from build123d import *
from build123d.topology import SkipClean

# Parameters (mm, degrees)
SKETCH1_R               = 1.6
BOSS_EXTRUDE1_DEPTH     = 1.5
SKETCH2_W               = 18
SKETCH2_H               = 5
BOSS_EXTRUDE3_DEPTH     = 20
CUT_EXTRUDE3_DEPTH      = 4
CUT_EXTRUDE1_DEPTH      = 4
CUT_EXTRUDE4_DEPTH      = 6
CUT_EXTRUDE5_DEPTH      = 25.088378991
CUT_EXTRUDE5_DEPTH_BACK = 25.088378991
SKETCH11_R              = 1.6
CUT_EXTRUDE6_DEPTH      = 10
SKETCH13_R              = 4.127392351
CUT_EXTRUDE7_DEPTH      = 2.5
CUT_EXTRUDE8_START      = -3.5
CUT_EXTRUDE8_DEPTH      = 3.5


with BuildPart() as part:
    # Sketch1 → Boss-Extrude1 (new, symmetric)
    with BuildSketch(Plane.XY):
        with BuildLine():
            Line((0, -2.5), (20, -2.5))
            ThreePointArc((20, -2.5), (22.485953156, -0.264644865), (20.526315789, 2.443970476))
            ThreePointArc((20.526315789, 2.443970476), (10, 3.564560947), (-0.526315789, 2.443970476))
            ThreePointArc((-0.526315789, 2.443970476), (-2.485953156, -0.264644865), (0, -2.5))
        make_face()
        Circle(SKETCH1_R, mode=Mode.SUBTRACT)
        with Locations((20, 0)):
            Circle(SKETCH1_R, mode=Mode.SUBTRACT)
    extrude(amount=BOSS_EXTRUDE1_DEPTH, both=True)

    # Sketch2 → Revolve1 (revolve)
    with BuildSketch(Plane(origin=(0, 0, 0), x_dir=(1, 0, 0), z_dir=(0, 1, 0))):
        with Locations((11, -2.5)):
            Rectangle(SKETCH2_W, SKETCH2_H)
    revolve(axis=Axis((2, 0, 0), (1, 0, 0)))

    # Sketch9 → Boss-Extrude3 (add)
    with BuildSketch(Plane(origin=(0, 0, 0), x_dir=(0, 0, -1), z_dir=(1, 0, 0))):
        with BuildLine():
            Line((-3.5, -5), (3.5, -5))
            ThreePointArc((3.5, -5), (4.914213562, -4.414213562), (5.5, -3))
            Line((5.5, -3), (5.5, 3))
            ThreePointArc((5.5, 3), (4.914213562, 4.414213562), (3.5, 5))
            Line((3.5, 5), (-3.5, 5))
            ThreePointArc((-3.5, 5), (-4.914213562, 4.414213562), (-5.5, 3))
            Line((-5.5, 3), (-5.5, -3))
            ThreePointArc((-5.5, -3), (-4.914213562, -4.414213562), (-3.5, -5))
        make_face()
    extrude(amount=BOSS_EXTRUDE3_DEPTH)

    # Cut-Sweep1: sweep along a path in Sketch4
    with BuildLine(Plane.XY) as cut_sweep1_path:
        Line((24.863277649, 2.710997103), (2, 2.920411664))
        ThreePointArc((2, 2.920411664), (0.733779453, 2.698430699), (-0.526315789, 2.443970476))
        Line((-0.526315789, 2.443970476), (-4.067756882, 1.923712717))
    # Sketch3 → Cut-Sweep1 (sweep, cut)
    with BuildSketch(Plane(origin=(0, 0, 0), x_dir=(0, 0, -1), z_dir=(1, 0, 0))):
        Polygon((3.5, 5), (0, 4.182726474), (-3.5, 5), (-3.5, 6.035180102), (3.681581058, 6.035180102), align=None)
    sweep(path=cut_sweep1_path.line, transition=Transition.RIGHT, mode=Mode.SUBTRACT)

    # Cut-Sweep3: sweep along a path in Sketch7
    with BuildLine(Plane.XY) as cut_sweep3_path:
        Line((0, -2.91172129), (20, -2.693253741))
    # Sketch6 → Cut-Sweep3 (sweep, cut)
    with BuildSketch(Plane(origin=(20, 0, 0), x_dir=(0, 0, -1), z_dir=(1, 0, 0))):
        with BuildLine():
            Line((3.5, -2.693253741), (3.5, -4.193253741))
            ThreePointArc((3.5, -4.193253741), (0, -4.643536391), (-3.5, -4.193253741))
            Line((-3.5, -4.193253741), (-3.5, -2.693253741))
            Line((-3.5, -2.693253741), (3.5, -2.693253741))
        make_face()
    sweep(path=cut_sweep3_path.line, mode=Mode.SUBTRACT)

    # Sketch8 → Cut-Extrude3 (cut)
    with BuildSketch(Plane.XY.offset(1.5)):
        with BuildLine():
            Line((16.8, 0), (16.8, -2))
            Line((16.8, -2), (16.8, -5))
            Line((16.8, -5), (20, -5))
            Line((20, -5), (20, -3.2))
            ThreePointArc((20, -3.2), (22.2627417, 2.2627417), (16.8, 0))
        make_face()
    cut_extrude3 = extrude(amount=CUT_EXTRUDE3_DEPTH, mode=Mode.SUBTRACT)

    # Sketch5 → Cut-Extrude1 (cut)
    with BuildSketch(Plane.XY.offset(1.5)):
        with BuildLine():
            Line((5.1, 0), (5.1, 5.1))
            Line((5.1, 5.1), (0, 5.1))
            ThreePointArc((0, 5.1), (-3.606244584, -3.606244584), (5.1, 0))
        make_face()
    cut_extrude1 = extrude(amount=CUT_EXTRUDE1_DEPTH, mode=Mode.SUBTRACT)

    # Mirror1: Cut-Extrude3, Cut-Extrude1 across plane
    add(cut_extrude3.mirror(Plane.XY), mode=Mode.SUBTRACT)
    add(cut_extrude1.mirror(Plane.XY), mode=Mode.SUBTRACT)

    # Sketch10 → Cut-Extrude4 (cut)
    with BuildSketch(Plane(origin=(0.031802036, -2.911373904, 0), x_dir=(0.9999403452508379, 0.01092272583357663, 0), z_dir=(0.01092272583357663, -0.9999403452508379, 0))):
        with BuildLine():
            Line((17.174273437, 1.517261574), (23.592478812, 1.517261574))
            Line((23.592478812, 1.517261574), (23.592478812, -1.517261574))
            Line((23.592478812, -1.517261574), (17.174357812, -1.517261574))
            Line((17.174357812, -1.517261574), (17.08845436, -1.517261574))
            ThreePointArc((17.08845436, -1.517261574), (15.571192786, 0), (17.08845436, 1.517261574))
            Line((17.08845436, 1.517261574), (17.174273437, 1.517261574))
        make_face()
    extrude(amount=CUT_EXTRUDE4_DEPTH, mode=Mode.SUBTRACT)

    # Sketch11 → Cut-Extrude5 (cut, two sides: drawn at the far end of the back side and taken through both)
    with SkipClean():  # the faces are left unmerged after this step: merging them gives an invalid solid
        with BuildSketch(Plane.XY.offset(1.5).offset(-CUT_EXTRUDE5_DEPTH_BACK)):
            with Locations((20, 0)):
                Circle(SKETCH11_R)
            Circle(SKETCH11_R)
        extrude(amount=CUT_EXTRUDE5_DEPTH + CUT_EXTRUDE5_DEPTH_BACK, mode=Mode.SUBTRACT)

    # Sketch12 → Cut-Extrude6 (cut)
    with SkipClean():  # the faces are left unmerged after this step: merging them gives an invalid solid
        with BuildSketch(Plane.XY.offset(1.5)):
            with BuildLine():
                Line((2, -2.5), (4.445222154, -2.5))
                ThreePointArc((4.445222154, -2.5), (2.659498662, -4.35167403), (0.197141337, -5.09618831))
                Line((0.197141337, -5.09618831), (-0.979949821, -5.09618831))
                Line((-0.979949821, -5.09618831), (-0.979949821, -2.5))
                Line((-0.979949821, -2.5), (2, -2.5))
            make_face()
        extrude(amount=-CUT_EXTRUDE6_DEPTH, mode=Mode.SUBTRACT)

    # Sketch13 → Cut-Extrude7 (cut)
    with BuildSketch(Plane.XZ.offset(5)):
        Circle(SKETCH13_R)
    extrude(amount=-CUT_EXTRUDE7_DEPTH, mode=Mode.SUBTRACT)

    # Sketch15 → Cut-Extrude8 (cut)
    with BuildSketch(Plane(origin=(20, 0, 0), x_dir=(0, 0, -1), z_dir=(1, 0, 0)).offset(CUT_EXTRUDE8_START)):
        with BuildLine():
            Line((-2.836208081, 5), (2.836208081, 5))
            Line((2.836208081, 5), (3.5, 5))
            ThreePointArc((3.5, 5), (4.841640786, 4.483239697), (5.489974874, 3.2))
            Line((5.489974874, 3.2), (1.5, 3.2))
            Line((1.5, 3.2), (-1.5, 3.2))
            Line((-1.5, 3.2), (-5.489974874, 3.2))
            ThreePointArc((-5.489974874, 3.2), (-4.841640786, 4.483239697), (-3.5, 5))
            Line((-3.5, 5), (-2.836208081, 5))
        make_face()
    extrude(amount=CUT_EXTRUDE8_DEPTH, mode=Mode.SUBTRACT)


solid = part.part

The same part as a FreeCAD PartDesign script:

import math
import FreeCAD as App
import Part
import Sketcher
from FreeCAD import Vector
Q = App.Units.Quantity


def add_polygon(sketch, points):
    """Adds a closed chain of lines whose ends are joined by coincident constraints."""
    first, n = sketch.GeometryCount, len(points)
    for a, b in zip(points, points[1:] + points[:1]):
        sketch.addGeometry(Part.LineSegment(App.Vector(*a, 0), App.Vector(*b, 0)), False)
    for i in range(n):
        sketch.addConstraint(Sketcher.Constraint("Coincident", first + i, 2, first + (i + 1) % n, 1))

doc = App.newDocument("Part")
body = doc.addObject("PartDesign::Body", "Body")

sketch1 = body.newObject("Sketcher::SketchObject", "Sketch")
sketch1.AttachmentSupport = (doc.getObject("XY_Plane"), [""])
sketch1.MapMode = "FlatFace"
sketch1.addGeometry(Part.LineSegment(Vector(0, -2.5, 0), Vector(20, -2.5, 0)), False)
sketch1.addGeometry(Part.ArcOfCircle(Part.Circle(Vector(20, 0, 0), Vector(0, 0, 1), 2.5), math.radians(-90), math.radians(78)), False)
sketch1.addGeometry(Part.ArcOfCircle(Part.Circle(Vector(10, -46.4, 0), Vector(0, 0, 1), 50), math.radians(78), math.radians(102)), False)
sketch1.addGeometry(Part.ArcOfCircle(Part.Circle(Vector(0, 0, 0), Vector(0, 0, 1), 2.5), math.radians(102), math.radians(270)), False)
sketch1.addGeometry(Part.Circle(Vector(0, 0, 0), Vector(0, 0, 1), 1.6), False)
sketch1.addGeometry(Part.Circle(Vector(20, 0, 0), Vector(0, 0, 1), 1.6), False)
sketch1.addConstraint(Sketcher.Constraint("Tangent", 0, 2, 1, 1))
sketch1.addConstraint(Sketcher.Constraint("Tangent", 1, 2, 2, 1))
sketch1.addConstraint(Sketcher.Constraint("Tangent", 2, 2, 3, 1))
sketch1.addConstraint(Sketcher.Constraint("Tangent", 3, 2, 0, 1))
sketch1.addConstraint(Sketcher.Constraint("Horizontal", 0))
sketch1.addConstraint(Sketcher.Constraint("Coincident", 3, 3, -1, 1))
sketch1.addConstraint(Sketcher.Constraint("Coincident", 4, 3, -1, 1))
sketch1.addConstraint(Sketcher.Constraint("Coincident", 5, 3, 1, 3))
sketch1.addConstraint(Sketcher.Constraint("Equal", 1, 3))
sketch1.addConstraint(Sketcher.Constraint("Equal", 4, 5))
sketch1.addConstraint(Sketcher.Constraint("Radius", 2, Q("50 mm")))
sketch1.addConstraint(Sketcher.Constraint("Diameter", 4, Q("3.2 mm")))
sketch1.addConstraint(Sketcher.Constraint("Radius", 1, Q("2.5 mm")))
sketch1.addConstraint(Sketcher.Constraint("DistanceX", 0, 1, 0, 2, Q("20 mm")))
pad1 = body.newObject("PartDesign::Pad", "Pad")
pad1.Profile = sketch1
pad1.Length = 3
pad1.Midplane = True

sketch2 = body.newObject("Sketcher::SketchObject", "Sketch001")
sketch2.AttachmentSupport = (doc.getObject("XZ_Plane"), [""])
sketch2.MapMode = "FlatFace"
add_polygon(sketch2, [(2, 0), (2, 5), (20, 5), (20, 0)])
sketch2.addConstraint(Sketcher.Constraint("Vertical", 0))
sketch2.addConstraint(Sketcher.Constraint("Horizontal", 1))
sketch2.addConstraint(Sketcher.Constraint("Vertical", 2))
sketch2.addConstraint(Sketcher.Constraint("Horizontal", 3))
sketch2.addConstraint(Sketcher.Constraint("PointOnObject", 2, 2, -1))
sketch2.addConstraint(Sketcher.Constraint("DistanceX", 1, 1, 1, 2, Q("18 mm")))
sketch2.addConstraint(Sketcher.Constraint("DistanceY", 0, 1, 0, 2, Q("5 mm")))
sketch2.addConstraint(Sketcher.Constraint("DistanceX", -1, 1, 0, 2, Q("2 mm")))
revolution = body.newObject("PartDesign::Revolution", "Revolution")
revolution.Profile = sketch2
revolution.ReferenceAxis = (sketch2, ["H_Axis"])
revolution.Angle = 360

sketch3 = body.newObject("Sketcher::SketchObject", "Sketch002")
sketch3.AttachmentSupport = (doc.getObject("YZ_Plane"), [""])
sketch3.MapMode = "FlatFace"
sketch3.addGeometry(Part.LineSegment(Vector(-5, 3.5, 0), Vector(-5, -3.5, 0)), False)
sketch3.addGeometry(Part.ArcOfCircle(Part.Circle(Vector(-3, -3.5, 0), Vector(0, 0, 1), 2), math.radians(-180), math.radians(-90)), False)
sketch3.addGeometry(Part.LineSegment(Vector(-3, -5.5, 0), Vector(3, -5.5, 0)), False)
sketch3.addGeometry(Part.ArcOfCircle(Part.Circle(Vector(3, -3.5, 0), Vector(0, 0, 1), 2), math.radians(-90), math.radians(0)), False)
sketch3.addGeometry(Part.LineSegment(Vector(5, -3.5, 0), Vector(5, 3.5, 0)), False)
sketch3.addGeometry(Part.ArcOfCircle(Part.Circle(Vector(3, 3.5, 0), Vector(0, 0, 1), 2), math.radians(0), math.radians(90)), False)
sketch3.addGeometry(Part.LineSegment(Vector(3, 5.5, 0), Vector(-3, 5.5, 0)), False)
sketch3.addGeometry(Part.ArcOfCircle(Part.Circle(Vector(-3, 3.5, 0), Vector(0, 0, 1), 2), math.radians(90), math.radians(180)), False)
sketch3.addConstraint(Sketcher.Constraint("Tangent", 0, 2, 1, 1))
sketch3.addConstraint(Sketcher.Constraint("Tangent", 1, 2, 2, 1))
sketch3.addConstraint(Sketcher.Constraint("Tangent", 2, 2, 3, 1))
sketch3.addConstraint(Sketcher.Constraint("Tangent", 3, 2, 4, 1))
sketch3.addConstraint(Sketcher.Constraint("Tangent", 4, 2, 5, 1))
sketch3.addConstraint(Sketcher.Constraint("Tangent", 5, 2, 6, 1))
sketch3.addConstraint(Sketcher.Constraint("Tangent", 6, 2, 7, 1))
sketch3.addConstraint(Sketcher.Constraint("Tangent", 7, 2, 0, 1))
sketch3.addConstraint(Sketcher.Constraint("Vertical", 0))
sketch3.addConstraint(Sketcher.Constraint("Horizontal", 2))
sketch3.addConstraint(Sketcher.Constraint("Vertical", 4))
sketch3.addConstraint(Sketcher.Constraint("Horizontal", 6))
sketch3.addConstraint(Sketcher.Constraint("Equal", 1, 3))
sketch3.addConstraint(Sketcher.Constraint("Equal", 3, 5))
sketch3.addConstraint(Sketcher.Constraint("Equal", 5, 7))
sketch3.addConstraint(Sketcher.Constraint("Symmetric", 1, 3, 5, 3, -1, 1))
sketch3.addConstraint(Sketcher.Constraint("Radius", 1, Q("2 mm")))
sketch3.addConstraint(Sketcher.Constraint("DistanceX", 2, 1, 2, 2, Q("6 mm")))
sketch3.addConstraint(Sketcher.Constraint("DistanceY", 0, 2, 0, 1, Q("7 mm")))
pad2 = body.newObject("PartDesign::Pad", "Pad001")
pad2.Profile = sketch3
pad2.Length = 20

sketch4 = body.newObject("Sketcher::SketchObject", "Sketch003")
sketch4.AttachmentSupport = (doc.getObject("YZ_Plane"), [""])
sketch4.MapMode = "FlatFace"
add_polygon(sketch4, [(4.2, 0), (5, -3.5), (6, -3.7), (6, 3.5), (5, 3.5)])
sketch4.addConstraint(Sketcher.Constraint("Vertical", 2))
sketch4.addConstraint(Sketcher.Constraint("Horizontal", 3))
sketch4.addConstraint(Sketcher.Constraint("Symmetric", 0, 2, 3, 2, -1))
sketch4.addConstraint(Sketcher.Constraint("PointOnObject", 4, 2, -1))
sketch4.addConstraint(Sketcher.Constraint("DistanceX", -1, 1, 0, 2, Q("5 mm")))
sketch4.addConstraint(Sketcher.Constraint("DistanceY", 0, 2, 2, 2, Q("7 mm")))
sketch4.addConstraint(Sketcher.Constraint("DistanceX", 3, 2, 3, 1, Q("1.03518 mm")))
sketch4.addConstraint(Sketcher.Constraint("DistanceY", 2, 1, 2, 2, Q("7.181581 mm")))
sketch4.addConstraint(Sketcher.Constraint("Distance", 0, Q("3.594153 mm")))

sketch5 = body.newObject("Sketcher::SketchObject", "Sketch004")
sketch5.AttachmentSupport = (doc.getObject("XY_Plane"), [""])
sketch5.MapMode = "FlatFace"
sketch5.addGeometry(Part.LineSegment(Vector(24.9, 2.7, 0), Vector(2, 2.9, 0)), False)
sketch5.addGeometry(Part.ArcOfCircle(Part.Circle(Vector(10, -46.4, 0), Vector(0, 0, 1), 50), math.radians(99.21), math.radians(102.15)), False)
sketch5.addGeometry(Part.LineSegment(Vector(-0.5, 2.4, 0), Vector(-4.1, 1.9, 0)), False)
sketch5.addConstraint(Sketcher.Constraint("Coincident", 0, 2, 1, 1))
sketch5.addConstraint(Sketcher.Constraint("Coincident", 1, 2, 2, 1))
sketch5.addConstraint(Sketcher.Constraint("Radius", 1, Q("49.999999 mm")))
sketch5.addConstraint(Sketcher.Constraint("DistanceX", -1, 1, 1, 3, Q("10 mm")))
sketch5.addConstraint(Sketcher.Constraint("DistanceX", -1, 1, 0, 2, Q("2 mm")))
sketch5.addConstraint(Sketcher.Constraint("DistanceY", 2, 2, 0, 2, Q("0.996699 mm")))
sketch5.addConstraint(Sketcher.Constraint("Distance", 2, Q("3.579452 mm")))
sketch5.addConstraint(Sketcher.Constraint("DistanceY", -1, 1, 0, 2, Q("2.920412 mm")))
sketch5.addConstraint(Sketcher.Constraint("DistanceY", -1, 1, 1, 2, Q("2.44397 mm")))
sketch5.addConstraint(Sketcher.Constraint("Distance", 0, Q("22.864237 mm")))
sketch5.addConstraint(Sketcher.Constraint("DistanceX", -1, 1, 0, 1, Q("24.863278 mm")))
doc.recompute()

subtractivepipe = body.newObject("PartDesign::SubtractivePipe", "SubtractivePipe")
subtractivepipe.Profile = sketch4
subtractivepipe.Spine = (sketch5, ["Edge1", "Edge2", "Edge3"])
subtractivepipe.Transition = "Right corner"

sketch6 = body.newObject("Sketcher::SketchObject", "Sketch005")
sketch6.AttachmentSupport = (doc.getObject("YZ_Plane"), [""])
sketch6.MapMode = "FlatFace"
sketch6.AttachmentOffset = App.Placement(Vector(0, 0, 20), App.Rotation())
sketch6.addGeometry(Part.LineSegment(Vector(-4.2, -3.5, 0), Vector(-2.7, -3.5, 0)), False)
sketch6.addGeometry(Part.LineSegment(Vector(-2.7, -3.5, 0), Vector(-2.7, 3.5, 0)), False)
sketch6.addGeometry(Part.LineSegment(Vector(-2.7, 3.5, 0), Vector(-4.2, 3.5, 0)), False)
sketch6.addGeometry(Part.ArcOfCircle(Part.Circle(Vector(9.2, 0, 0), Vector(0, 0, 1), 13.8), math.radians(165), math.radians(195)), False)
sketch6.addConstraint(Sketcher.Constraint("Coincident", 0, 2, 1, 1))
sketch6.addConstraint(Sketcher.Constraint("Coincident", 1, 2, 2, 1))
sketch6.addConstraint(Sketcher.Constraint("Coincident", 2, 2, 3, 1))
sketch6.addConstraint(Sketcher.Constraint("Coincident", 3, 2, 0, 1))
sketch6.addConstraint(Sketcher.Constraint("Horizontal", 0))
sketch6.addConstraint(Sketcher.Constraint("Vertical", 1))
sketch6.addConstraint(Sketcher.Constraint("Horizontal", 2))
sketch6.addConstraint(Sketcher.Constraint("Symmetric", 2, 2, 3, 2, -1))
sketch6.addConstraint(Sketcher.Constraint("DistanceY", 1, 1, 1, 2, Q("7 mm")))
sketch6.addConstraint(Sketcher.Constraint("DistanceX", 0, 1, 0, 2, Q("1.5 mm")))
sketch6.addConstraint(Sketcher.Constraint("Radius", 3, Q("13.827709 mm")))
sketch6.addConstraint(Sketcher.Constraint("DistanceX", -1, 1, 3, 3, Q("9.184172 mm")))

sketch7 = body.newObject("Sketcher::SketchObject", "Sketch006")
sketch7.Placement = App.Placement(Vector(0.031802, -2.911374, 0), App.Rotation(Vector(0.999940345, 0.010922726, 0), Vector(0, 0, 1), Vector(0.010922726, -0.999940345, 0), "ZXY"))
sketch7.addGeometry(Part.LineSegment(Vector(0, 0, 0), Vector(20, 0, 0)), False)
sketch7.addConstraint(Sketcher.Constraint("Horizontal", 0))
sketch7.addConstraint(Sketcher.Constraint("PointOnObject", 0, 1, -1))
sketch7.addConstraint(Sketcher.Constraint("DistanceX", 0, 1, 0, 2, Q("20.001193 mm")))
sketch7.addConstraint(Sketcher.Constraint("DistanceX", -1, 1, 0, 2, Q("19.969389 mm")))
doc.recompute()

subtractivepipe2 = body.newObject("PartDesign::SubtractivePipe", "SubtractivePipe001")
subtractivepipe2.Profile = sketch6
subtractivepipe2.Spine = (sketch7, ["Edge1"])

sketch8 = body.newObject("Sketcher::SketchObject", "Sketch007")
sketch8.AttachmentSupport = (doc.getObject("XY_Plane"), [""])
sketch8.MapMode = "FlatFace"
sketch8.AttachmentOffset = App.Placement(Vector(0, 0, 1.5), App.Rotation())
sketch8.addGeometry(Part.LineSegment(Vector(16.8, 0, 0), Vector(16.8, -5, 0)), False)
sketch8.addGeometry(Part.LineSegment(Vector(16.8, -5, 0), Vector(20, -5, 0)), False)
sketch8.addGeometry(Part.LineSegment(Vector(20, -5, 0), Vector(20, -3.2, 0)), False)
sketch8.addGeometry(Part.ArcOfCircle(Part.Circle(Vector(20, 0, 0), Vector(0, 0, 1), 3.2), math.radians(-90), math.radians(180)), False)
sketch8.addConstraint(Sketcher.Constraint("Coincident", 0, 2, 1, 1))
sketch8.addConstraint(Sketcher.Constraint("Coincident", 1, 2, 2, 1))
sketch8.addConstraint(Sketcher.Constraint("Coincident", 2, 2, 3, 1))
sketch8.addConstraint(Sketcher.Constraint("Tangent", 3, 2, 0, 1))
sketch8.addConstraint(Sketcher.Constraint("Vertical", 0))
sketch8.addConstraint(Sketcher.Constraint("Horizontal", 1))
sketch8.addConstraint(Sketcher.Constraint("Vertical", 2))
sketch8.addConstraint(Sketcher.Constraint("PointOnObject", 3, 3, -1))
sketch8.addConstraint(Sketcher.Constraint("Vertical", 3, 3, 1, 2))
sketch8.addConstraint(Sketcher.Constraint("Radius", 3, Q("3.2 mm")))
sketch8.addConstraint(Sketcher.Constraint("DistanceY", 0, 2, 0, 1, Q("5 mm")))
sketch8.addConstraint(Sketcher.Constraint("DistanceX", -1, 1, 3, 3, Q("20 mm")))
pocket1 = body.newObject("PartDesign::Pocket", "Pocket")
pocket1.Profile = sketch8
pocket1.Length = 4
pocket1.Reversed = True

sketch9 = body.newObject("Sketcher::SketchObject", "Sketch008")
sketch9.AttachmentSupport = (doc.getObject("XY_Plane"), [""])
sketch9.MapMode = "FlatFace"
sketch9.AttachmentOffset = App.Placement(Vector(0, 0, 1.5), App.Rotation())
sketch9.addGeometry(Part.LineSegment(Vector(5, 0, 0), Vector(5, 5, 0)), False)
sketch9.addGeometry(Part.LineSegment(Vector(5, 5, 0), Vector(0, 5, 0)), False)
sketch9.addGeometry(Part.ArcOfCircle(Part.Circle(Vector(0, 0, 0), Vector(0, 0, 1), 5), math.radians(90), math.radians(360)), False)
sketch9.addConstraint(Sketcher.Constraint("Coincident", 0, 2, 1, 1))
sketch9.addConstraint(Sketcher.Constraint("Tangent", 1, 2, 2, 1))
sketch9.addConstraint(Sketcher.Constraint("Tangent", 2, 2, 0, 1))
sketch9.addConstraint(Sketcher.Constraint("Vertical", 0))
sketch9.addConstraint(Sketcher.Constraint("Horizontal", 1))
sketch9.addConstraint(Sketcher.Constraint("Coincident", 2, 3, -1, 1))
sketch9.addConstraint(Sketcher.Constraint("Radius", 2, Q("5.1 mm")))
pocket2 = body.newObject("PartDesign::Pocket", "Pocket001")
pocket2.Profile = sketch9
pocket2.Length = 4
pocket2.Reversed = True
doc.recompute()

mirrored = body.newObject("PartDesign::Mirrored", "Mirrored")
mirrored.Originals = [pocket1, pocket2]
mirrored.MirrorPlane = (doc.getObject("XY_Plane"), [""])
body.Tip = mirrored

sketch10 = body.newObject("Sketcher::SketchObject", "Sketch009")
sketch10.Placement = App.Placement(Vector(0.031802, -2.911374, 0), App.Rotation(Vector(0.999940345, 0.010922726, 0), Vector(0, 0, 1), Vector(0.010922726, -0.999940345, 0), "ZXY"))
sketch10.addGeometry(Part.LineSegment(Vector(23.6, -1.5, 0), Vector(23.6, 1.5, 0)), False)
sketch10.addGeometry(Part.LineSegment(Vector(23.6, 1.5, 0), Vector(17.1, 1.5, 0)), False)
sketch10.addGeometry(Part.ArcOfCircle(Part.Circle(Vector(17.1, 0, 0), Vector(0, 0, 1), 1.5), math.radians(90), math.radians(270)), False)
sketch10.addGeometry(Part.LineSegment(Vector(17.1, -1.5, 0), Vector(23.6, -1.5, 0)), False)
sketch10.addConstraint(Sketcher.Constraint("Coincident", 0, 2, 1, 1))
sketch10.addConstraint(Sketcher.Constraint("Tangent", 1, 2, 2, 1))
sketch10.addConstraint(Sketcher.Constraint("Tangent", 2, 2, 3, 1))
sketch10.addConstraint(Sketcher.Constraint("Coincident", 3, 2, 0, 1))
sketch10.addConstraint(Sketcher.Constraint("Vertical", 0))
sketch10.addConstraint(Sketcher.Constraint("Horizontal", 1))
sketch10.addConstraint(Sketcher.Constraint("Horizontal", 3))
sketch10.addConstraint(Sketcher.Constraint("PointOnObject", 2, 3, -1))
sketch10.addConstraint(Sketcher.Constraint("Radius", 2, Q("1.517262 mm")))
sketch10.addConstraint(Sketcher.Constraint("DistanceX", 1, 2, 1, 1, Q("6.504024 mm")))
sketch10.addConstraint(Sketcher.Constraint("DistanceX", -1, 1, 0, 2, Q("23.592479 mm")))
pocket3 = body.newObject("PartDesign::Pocket", "Pocket002")
pocket3.Profile = sketch10
pocket3.Length = 6
pocket3.Reversed = True

sketch11 = body.newObject("Sketcher::SketchObject", "Sketch010")
sketch11.AttachmentSupport = (doc.getObject("XY_Plane"), [""])
sketch11.MapMode = "FlatFace"
sketch11.AttachmentOffset = App.Placement(Vector(0, 0, 1.5), App.Rotation())
sketch11.addGeometry(Part.Circle(Vector(20, 0, 0), Vector(0, 0, 1), 1.6), False)
sketch11.addGeometry(Part.Circle(Vector(0, 0, 0), Vector(0, 0, 1), 1.6), False)
sketch11.addConstraint(Sketcher.Constraint("Coincident", 1, 3, -1, 1))
sketch11.addConstraint(Sketcher.Constraint("Equal", 0, 1))
sketch11.addConstraint(Sketcher.Constraint("PointOnObject", 0, 3, -1))
sketch11.addConstraint(Sketcher.Constraint("Diameter", 0, Q("3.2 mm")))
sketch11.addConstraint(Sketcher.Constraint("DistanceX", -1, 1, 0, 3, Q("20 mm")))
pocket4 = body.newObject("PartDesign::Pocket", "Pocket003")
pocket4.Profile = sketch11
pocket4.Type = "ThroughAll"
pocket4.Midplane = True

sketch12 = body.newObject("Sketcher::SketchObject", "Sketch011")
sketch12.AttachmentSupport = (doc.getObject("XY_Plane"), [""])
sketch12.MapMode = "FlatFace"
sketch12.AttachmentOffset = App.Placement(Vector(0, 0, 1.5), App.Rotation())
sketch12.addGeometry(Part.LineSegment(Vector(4.4, -2.5, 0), Vector(-1, -2.5, 0)), False)
sketch12.addGeometry(Part.LineSegment(Vector(-1, -2.5, 0), Vector(-1, -5.1, 0)), False)
sketch12.addGeometry(Part.LineSegment(Vector(-1, -5.1, 0), Vector(0.2, -5.1, 0)), False)
sketch12.addGeometry(Part.ArcOfCircle(Part.Circle(Vector(0, 0, 0), Vector(0, 0, 1), 5.1), math.radians(-88), math.radians(-29)), False)
sketch12.addConstraint(Sketcher.Constraint("Coincident", 0, 2, 1, 1))
sketch12.addConstraint(Sketcher.Constraint("Coincident", 1, 2, 2, 1))
sketch12.addConstraint(Sketcher.Constraint("Coincident", 2, 2, 3, 1))
sketch12.addConstraint(Sketcher.Constraint("Coincident", 3, 2, 0, 1))
sketch12.addConstraint(Sketcher.Constraint("Horizontal", 0))
sketch12.addConstraint(Sketcher.Constraint("Vertical", 1))
sketch12.addConstraint(Sketcher.Constraint("Horizontal", 2))
sketch12.addConstraint(Sketcher.Constraint("Coincident", 3, 3, -1, 1))
sketch12.addConstraint(Sketcher.Constraint("Radius", 3, Q("5.1 mm")))
sketch12.addConstraint(Sketcher.Constraint("DistanceY", 0, 2, -1, 1, Q("2.5 mm")))
sketch12.addConstraint(Sketcher.Constraint("DistanceX", 0, 2, 0, 1, Q("5.425172 mm")))
sketch12.addConstraint(Sketcher.Constraint("DistanceX", 2, 1, 2, 2, Q("1.177091 mm")))
pocket5 = body.newObject("PartDesign::Pocket", "Pocket004")
pocket5.Profile = sketch12
pocket5.Length = 10

sketch13 = body.newObject("Sketcher::SketchObject", "Sketch012")
sketch13.AttachmentSupport = (doc.getObject("XZ_Plane"), [""])
sketch13.MapMode = "FlatFace"
sketch13.AttachmentOffset = App.Placement(Vector(0, 0, 5), App.Rotation())
sketch13.addGeometry(Part.Circle(Vector(0, 0, 0), Vector(0, 0, 1), 4.1), False)
sketch13.addConstraint(Sketcher.Constraint("Coincident", 0, 3, -1, 1))
sketch13.addConstraint(Sketcher.Constraint("Diameter", 0, Q("8.254785 mm")))
pocket6 = body.newObject("PartDesign::Pocket", "Pocket005")
pocket6.Profile = sketch13
pocket6.Length = 2.5

sketch14 = body.newObject("Sketcher::SketchObject", "Sketch013")
sketch14.AttachmentSupport = (doc.getObject("YZ_Plane"), [""])
sketch14.MapMode = "FlatFace"
sketch14.AttachmentOffset = App.Placement(Vector(0, 0, 16.5), App.Rotation())
sketch14.addGeometry(Part.ArcOfCircle(Part.Circle(Vector(3, -3.5, 0), Vector(0, 0, 1), 2), math.radians(-84), math.radians(0)), False)
sketch14.addGeometry(Part.LineSegment(Vector(5, -3.5, 0), Vector(5, 3.5, 0)), False)
sketch14.addGeometry(Part.ArcOfCircle(Part.Circle(Vector(3, 3.5, 0), Vector(0, 0, 1), 2), math.radians(0), math.radians(84)), False)
sketch14.addGeometry(Part.LineSegment(Vector(3.2, 5.5, 0), Vector(3.2, -5.5, 0)), False)
sketch14.addConstraint(Sketcher.Constraint("Tangent", 0, 2, 1, 1))
sketch14.addConstraint(Sketcher.Constraint("Tangent", 1, 2, 2, 1))
sketch14.addConstraint(Sketcher.Constraint("Coincident", 2, 2, 3, 1))
sketch14.addConstraint(Sketcher.Constraint("Coincident", 3, 2, 0, 1))
sketch14.addConstraint(Sketcher.Constraint("Vertical", 1))
sketch14.addConstraint(Sketcher.Constraint("Vertical", 3))
sketch14.addConstraint(Sketcher.Constraint("Equal", 0, 2))
sketch14.addConstraint(Sketcher.Constraint("Radius", 0, Q("2 mm")))
sketch14.addConstraint(Sketcher.Constraint("DistanceY", 1, 1, 1, 2, Q("7 mm")))
sketch14.addConstraint(Sketcher.Constraint("DistanceX", -1, 1, 0, 3, Q("3 mm")))
sketch14.addConstraint(Sketcher.Constraint("DistanceY", 0, 3, -1, 1, Q("3.5 mm")))
sketch14.addConstraint(Sketcher.Constraint("DistanceX", -1, 1, 2, 2, Q("3.2 mm")))
pocket7 = body.newObject("PartDesign::Pocket", "Pocket006")
pocket7.Profile = sketch14
pocket7.Length = 3.5
pocket7.Reversed = True

doc.recompute()
